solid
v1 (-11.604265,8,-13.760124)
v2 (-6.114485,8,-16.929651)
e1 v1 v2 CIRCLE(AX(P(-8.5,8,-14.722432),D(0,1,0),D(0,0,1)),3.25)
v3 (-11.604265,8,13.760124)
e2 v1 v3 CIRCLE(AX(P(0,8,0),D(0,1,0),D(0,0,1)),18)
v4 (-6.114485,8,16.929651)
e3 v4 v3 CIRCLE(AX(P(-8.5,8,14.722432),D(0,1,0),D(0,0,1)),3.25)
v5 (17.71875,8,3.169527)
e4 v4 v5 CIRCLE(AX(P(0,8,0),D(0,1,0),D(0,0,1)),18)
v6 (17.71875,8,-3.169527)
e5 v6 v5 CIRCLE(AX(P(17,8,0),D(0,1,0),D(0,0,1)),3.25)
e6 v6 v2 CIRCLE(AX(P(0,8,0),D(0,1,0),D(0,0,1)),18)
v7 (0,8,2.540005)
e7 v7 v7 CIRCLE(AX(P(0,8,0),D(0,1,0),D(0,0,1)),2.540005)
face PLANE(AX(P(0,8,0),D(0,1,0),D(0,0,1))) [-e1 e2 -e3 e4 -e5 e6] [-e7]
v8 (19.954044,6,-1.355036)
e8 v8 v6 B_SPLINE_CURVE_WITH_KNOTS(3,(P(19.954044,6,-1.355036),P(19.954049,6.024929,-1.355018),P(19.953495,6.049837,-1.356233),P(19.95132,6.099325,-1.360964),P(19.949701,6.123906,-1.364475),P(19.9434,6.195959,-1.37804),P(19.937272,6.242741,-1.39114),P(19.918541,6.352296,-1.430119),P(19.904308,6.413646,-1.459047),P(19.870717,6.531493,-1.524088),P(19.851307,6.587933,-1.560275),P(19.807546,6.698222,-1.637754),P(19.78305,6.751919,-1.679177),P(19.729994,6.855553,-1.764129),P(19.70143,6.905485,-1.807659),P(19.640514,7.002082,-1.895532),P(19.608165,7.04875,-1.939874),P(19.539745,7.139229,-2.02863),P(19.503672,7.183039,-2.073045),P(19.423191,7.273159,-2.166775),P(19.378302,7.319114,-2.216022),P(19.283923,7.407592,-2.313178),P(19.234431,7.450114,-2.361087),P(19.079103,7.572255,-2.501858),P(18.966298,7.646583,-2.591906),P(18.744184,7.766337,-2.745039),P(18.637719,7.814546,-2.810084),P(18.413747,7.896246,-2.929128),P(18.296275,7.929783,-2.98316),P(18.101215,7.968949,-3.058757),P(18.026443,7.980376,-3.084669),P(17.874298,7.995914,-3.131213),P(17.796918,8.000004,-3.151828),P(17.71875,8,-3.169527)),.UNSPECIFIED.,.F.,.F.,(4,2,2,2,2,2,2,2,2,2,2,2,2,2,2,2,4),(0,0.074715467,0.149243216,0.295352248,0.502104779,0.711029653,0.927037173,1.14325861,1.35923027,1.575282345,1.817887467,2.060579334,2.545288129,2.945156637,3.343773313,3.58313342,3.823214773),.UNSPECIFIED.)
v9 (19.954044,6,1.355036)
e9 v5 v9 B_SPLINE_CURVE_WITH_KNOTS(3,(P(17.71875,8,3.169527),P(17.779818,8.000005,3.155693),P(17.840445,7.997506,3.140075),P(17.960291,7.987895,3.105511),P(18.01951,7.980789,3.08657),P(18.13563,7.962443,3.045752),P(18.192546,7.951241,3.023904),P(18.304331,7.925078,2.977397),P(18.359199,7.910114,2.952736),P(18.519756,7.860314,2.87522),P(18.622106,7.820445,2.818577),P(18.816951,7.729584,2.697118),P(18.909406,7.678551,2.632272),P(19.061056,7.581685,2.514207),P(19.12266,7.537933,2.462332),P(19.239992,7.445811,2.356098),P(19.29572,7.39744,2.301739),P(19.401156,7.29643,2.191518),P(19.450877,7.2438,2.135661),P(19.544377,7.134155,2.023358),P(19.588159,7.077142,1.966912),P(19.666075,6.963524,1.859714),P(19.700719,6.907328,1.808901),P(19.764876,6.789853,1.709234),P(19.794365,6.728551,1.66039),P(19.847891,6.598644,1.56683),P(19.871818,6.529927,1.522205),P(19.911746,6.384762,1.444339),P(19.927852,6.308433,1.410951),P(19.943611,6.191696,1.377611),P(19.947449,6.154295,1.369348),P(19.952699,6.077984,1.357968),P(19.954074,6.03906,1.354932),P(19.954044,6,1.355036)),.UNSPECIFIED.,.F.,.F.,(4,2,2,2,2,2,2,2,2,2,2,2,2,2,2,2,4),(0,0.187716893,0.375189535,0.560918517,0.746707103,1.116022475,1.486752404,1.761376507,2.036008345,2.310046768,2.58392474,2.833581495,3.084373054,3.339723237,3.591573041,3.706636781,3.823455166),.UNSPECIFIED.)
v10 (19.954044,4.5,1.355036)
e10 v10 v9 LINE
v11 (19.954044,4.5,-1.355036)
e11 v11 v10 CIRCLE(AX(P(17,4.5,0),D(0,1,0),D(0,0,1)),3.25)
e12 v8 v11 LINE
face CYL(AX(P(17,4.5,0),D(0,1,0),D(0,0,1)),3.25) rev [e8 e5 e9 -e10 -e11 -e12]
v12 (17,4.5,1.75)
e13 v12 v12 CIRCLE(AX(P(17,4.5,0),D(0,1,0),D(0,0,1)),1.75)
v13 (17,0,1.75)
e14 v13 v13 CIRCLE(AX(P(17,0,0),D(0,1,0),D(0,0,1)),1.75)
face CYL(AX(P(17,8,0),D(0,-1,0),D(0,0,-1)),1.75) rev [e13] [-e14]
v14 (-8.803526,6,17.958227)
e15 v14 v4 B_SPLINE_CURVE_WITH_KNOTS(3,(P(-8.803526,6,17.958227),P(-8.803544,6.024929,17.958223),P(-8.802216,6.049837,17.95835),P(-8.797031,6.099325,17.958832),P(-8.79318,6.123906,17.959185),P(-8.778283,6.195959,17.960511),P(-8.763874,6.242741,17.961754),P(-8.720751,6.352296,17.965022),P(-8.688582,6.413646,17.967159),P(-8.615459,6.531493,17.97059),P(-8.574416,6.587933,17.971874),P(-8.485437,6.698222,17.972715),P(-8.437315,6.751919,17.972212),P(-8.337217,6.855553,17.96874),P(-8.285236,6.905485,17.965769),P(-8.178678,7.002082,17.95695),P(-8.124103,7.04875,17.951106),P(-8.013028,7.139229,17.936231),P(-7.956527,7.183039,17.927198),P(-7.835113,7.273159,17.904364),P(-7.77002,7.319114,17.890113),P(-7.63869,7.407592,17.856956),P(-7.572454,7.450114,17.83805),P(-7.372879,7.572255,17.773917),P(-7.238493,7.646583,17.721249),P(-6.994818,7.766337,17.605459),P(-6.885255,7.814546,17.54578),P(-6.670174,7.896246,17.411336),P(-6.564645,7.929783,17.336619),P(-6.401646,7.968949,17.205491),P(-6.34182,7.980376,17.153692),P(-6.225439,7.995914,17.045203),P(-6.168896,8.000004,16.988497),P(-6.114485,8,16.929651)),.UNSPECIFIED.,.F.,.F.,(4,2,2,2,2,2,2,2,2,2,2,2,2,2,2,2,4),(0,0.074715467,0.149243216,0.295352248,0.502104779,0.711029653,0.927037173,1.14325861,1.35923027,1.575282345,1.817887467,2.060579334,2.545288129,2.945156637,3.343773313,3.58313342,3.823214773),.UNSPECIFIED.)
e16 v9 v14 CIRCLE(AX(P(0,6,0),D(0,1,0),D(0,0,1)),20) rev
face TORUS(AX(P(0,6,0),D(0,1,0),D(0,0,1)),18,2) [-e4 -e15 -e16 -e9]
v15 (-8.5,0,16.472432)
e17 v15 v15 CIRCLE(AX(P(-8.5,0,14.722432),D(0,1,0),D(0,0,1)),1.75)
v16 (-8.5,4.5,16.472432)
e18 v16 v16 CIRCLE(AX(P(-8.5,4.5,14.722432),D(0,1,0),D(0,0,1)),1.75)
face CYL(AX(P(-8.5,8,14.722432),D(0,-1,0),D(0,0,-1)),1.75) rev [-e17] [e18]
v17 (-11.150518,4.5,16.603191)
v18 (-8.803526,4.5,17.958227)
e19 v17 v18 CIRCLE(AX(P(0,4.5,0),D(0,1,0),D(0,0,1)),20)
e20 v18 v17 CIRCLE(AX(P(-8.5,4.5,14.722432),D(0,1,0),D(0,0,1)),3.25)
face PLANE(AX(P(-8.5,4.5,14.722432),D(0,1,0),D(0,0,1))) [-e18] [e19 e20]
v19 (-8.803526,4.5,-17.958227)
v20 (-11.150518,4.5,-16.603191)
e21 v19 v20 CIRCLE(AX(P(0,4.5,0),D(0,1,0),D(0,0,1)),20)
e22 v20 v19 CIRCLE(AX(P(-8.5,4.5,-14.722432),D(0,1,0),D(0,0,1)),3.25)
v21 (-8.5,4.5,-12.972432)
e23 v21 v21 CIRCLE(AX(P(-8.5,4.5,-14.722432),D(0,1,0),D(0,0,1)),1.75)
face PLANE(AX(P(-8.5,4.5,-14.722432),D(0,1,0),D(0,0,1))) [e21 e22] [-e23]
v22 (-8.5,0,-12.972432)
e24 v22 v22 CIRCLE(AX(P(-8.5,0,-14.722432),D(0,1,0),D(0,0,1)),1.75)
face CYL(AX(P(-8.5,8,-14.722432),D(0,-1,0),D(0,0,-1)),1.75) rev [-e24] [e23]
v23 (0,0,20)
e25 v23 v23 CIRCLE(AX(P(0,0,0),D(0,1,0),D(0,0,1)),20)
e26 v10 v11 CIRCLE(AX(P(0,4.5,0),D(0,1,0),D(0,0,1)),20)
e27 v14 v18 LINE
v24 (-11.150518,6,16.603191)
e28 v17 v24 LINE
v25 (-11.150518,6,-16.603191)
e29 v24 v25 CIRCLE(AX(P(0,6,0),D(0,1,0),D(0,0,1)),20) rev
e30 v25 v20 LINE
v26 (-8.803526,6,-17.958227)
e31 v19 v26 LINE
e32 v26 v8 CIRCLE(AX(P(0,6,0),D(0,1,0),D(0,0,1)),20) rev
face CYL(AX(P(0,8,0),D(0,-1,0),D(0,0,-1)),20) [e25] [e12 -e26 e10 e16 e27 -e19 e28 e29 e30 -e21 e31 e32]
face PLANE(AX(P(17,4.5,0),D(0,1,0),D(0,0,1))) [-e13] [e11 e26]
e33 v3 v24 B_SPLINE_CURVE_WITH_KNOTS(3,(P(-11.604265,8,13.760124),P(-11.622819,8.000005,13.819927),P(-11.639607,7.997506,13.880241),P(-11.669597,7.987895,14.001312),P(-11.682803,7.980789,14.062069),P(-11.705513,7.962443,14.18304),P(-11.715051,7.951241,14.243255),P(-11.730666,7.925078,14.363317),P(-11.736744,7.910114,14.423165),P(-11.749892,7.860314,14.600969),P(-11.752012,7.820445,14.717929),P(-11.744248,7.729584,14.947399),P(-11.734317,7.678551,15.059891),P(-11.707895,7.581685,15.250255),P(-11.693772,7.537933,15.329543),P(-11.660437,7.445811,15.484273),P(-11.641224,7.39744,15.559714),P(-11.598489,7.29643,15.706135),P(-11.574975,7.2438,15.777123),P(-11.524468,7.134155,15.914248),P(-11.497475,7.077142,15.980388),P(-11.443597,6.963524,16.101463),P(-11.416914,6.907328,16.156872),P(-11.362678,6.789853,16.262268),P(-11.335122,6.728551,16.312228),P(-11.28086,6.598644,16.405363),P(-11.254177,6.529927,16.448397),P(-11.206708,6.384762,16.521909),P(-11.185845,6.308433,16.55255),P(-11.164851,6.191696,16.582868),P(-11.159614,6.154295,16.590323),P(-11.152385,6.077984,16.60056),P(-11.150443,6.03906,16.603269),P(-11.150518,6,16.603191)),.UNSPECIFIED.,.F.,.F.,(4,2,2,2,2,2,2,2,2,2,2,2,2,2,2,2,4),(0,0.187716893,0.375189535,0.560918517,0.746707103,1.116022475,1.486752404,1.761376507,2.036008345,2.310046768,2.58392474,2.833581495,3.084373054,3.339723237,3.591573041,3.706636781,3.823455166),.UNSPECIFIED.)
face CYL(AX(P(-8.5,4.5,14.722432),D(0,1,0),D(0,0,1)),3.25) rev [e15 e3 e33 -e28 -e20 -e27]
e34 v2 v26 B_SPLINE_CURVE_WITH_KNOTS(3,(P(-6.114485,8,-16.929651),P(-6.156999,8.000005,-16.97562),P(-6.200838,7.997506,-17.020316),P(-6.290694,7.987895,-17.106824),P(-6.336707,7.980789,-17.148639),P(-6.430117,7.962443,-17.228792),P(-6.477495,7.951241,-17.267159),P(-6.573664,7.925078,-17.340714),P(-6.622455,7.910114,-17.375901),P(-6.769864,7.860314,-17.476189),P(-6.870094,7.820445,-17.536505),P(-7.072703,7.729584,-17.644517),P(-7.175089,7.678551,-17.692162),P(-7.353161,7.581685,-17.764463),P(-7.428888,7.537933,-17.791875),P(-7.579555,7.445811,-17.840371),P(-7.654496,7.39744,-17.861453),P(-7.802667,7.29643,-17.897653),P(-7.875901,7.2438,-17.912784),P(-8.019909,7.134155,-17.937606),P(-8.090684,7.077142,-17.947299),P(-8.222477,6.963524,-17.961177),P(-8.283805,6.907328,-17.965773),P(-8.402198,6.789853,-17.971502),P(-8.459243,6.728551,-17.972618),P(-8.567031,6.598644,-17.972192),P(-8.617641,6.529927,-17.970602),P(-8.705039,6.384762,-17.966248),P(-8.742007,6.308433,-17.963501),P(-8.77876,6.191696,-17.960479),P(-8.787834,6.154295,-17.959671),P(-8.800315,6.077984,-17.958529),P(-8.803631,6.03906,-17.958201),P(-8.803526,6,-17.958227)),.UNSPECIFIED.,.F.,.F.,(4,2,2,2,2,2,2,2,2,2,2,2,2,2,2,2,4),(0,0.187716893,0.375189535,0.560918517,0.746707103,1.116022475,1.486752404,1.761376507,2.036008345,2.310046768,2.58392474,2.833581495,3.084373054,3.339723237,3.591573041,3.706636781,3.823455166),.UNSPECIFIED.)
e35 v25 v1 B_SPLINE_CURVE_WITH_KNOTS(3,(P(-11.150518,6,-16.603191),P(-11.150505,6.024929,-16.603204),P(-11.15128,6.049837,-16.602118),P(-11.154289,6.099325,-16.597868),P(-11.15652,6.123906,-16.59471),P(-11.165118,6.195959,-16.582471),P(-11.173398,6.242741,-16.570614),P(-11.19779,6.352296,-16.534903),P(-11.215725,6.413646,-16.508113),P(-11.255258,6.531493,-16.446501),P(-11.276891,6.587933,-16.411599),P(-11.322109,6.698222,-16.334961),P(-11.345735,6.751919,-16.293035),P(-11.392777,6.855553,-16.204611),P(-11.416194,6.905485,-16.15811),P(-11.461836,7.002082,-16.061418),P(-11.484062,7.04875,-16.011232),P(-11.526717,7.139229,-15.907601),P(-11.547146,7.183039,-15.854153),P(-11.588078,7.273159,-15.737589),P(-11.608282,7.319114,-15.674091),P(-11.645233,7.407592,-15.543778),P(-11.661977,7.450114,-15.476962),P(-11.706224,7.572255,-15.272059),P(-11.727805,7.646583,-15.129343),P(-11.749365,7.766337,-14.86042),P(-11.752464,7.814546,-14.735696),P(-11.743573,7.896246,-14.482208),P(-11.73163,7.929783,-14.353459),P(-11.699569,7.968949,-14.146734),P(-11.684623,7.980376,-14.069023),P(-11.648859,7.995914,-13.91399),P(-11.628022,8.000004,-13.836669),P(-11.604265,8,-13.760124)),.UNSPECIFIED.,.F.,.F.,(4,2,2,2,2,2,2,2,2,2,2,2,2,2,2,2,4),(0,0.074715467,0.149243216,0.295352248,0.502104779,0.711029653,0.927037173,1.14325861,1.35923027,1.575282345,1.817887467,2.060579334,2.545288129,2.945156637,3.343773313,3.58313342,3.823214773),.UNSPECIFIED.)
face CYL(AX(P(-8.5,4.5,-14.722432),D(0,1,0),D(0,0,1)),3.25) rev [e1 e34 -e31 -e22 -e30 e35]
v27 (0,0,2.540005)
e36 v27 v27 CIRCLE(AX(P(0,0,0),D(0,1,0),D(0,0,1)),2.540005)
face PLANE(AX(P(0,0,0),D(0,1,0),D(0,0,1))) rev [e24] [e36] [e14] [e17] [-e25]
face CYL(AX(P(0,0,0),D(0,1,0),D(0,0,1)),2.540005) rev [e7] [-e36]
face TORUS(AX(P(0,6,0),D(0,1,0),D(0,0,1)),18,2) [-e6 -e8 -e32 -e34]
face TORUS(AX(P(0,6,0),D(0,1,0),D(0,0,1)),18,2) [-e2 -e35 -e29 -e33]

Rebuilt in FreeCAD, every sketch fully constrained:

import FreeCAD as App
import Part
import Sketcher
from FreeCAD import Vector
Q = App.Units.Quantity


def edges_at(feature, points):
    """Names of the edges that pass closest to the given points."""
    edges = feature.Shape.Edges
    near = lambda p: min(range(len(edges)), key=lambda i: edges[i].distToShape(Part.Vertex(*p))[0])
    return sorted({f"Edge{near(p) + 1}" for p in points})

doc = App.newDocument("Part")
body = doc.addObject("PartDesign::Body", "Body")

# Sketch on XZ plane
sketch1 = body.newObject("Sketcher::SketchObject", "Sketch")
sketch1.AttachmentSupport = (doc.getObject("XZ_Plane"), [""])
sketch1.MapMode = "FlatFace"
sketch1.addGeometry([
    Part.Circle(Vector(0, 0, 0), Vector(0, 0, 1), 20),
    Part.Circle(Vector(-8.5, -14.7, 0), Vector(0, 0, 1), 1.8),
    Part.Circle(Vector(-8.5, 14.7, 0), Vector(0, 0, 1), 1.8),
    Part.Circle(Vector(17, 0, 0), Vector(0, 0, 1), 1.8),
], False)
sketch1.addConstraint([
    Sketcher.Constraint("Coincident", 0, 3, -1, 1),
    Sketcher.Constraint("Equal", 1, 2),
    Sketcher.Constraint("Equal", 2, 3),
    Sketcher.Constraint("Symmetric", 1, 3, 2, 3, -1),
    Sketcher.Constraint("PointOnObject", 3, 3, -1),
    Sketcher.Constraint("Diameter", 0, Q("40 mm")),
    Sketcher.Constraint("Diameter", 1, Q("3.5 mm")),
    Sketcher.Constraint("DistanceX", -1, 1, 3, 3, Q("17 mm")),
    Sketcher.Constraint("DistanceX", 1, 3, -1, 1, Q("8.5 mm")),
    Sketcher.Constraint("DistanceY", 1, 3, -1, 1, Q("14.722432 mm")),
])
pad1 = body.newObject("PartDesign::Pad", "Pad")
pad1.Profile = sketch1
pad1.Length = 8
pad1.Reversed = True

# Sketch on XZ plane
sketch2 = body.newObject("Sketcher::SketchObject", "Sketch001")
sketch2.AttachmentSupport = (doc.getObject("XZ_Plane"), [""])
sketch2.MapMode = "FlatFace"
sketch2.AttachmentOffset = App.Placement(Vector(0, 0, -8), App.Rotation())
sketch2.addGeometry([
    Part.Circle(Vector(17, 0, 0), Vector(0, 0, 1), 3.2),
    Part.Circle(Vector(-8.5, 14.7, 0), Vector(0, 0, 1), 3.2),
    Part.Circle(Vector(-8.5, -14.7, 0), Vector(0, 0, 1), 3.2),
], False)
sketch2.addConstraint([
    Sketcher.Constraint("Equal", 0, 1),
    Sketcher.Constraint("Equal", 1, 2),
    Sketcher.Constraint("Symmetric", 1, 3, 2, 3, -1),
    Sketcher.Constraint("PointOnObject", 0, 3, -1),
    Sketcher.Constraint("Diameter", 0, Q("6.5 mm")),
    Sketcher.Constraint("DistanceX", -1, 1, 0, 3, Q("17 mm")),
    Sketcher.Constraint("DistanceX", 1, 3, -1, 1, Q("8.5 mm")),
    Sketcher.Constraint("DistanceY", -1, 1, 1, 3, Q("14.722432 mm")),
])
pocket1 = body.newObject("PartDesign::Pocket", "Pocket")
pocket1.Profile = sketch2
pocket1.Length = 3.5
pocket1.Reversed = True

# Sketch on XZ plane
sketch3 = body.newObject("Sketcher::SketchObject", "Sketch002")
sketch3.AttachmentSupport = (doc.getObject("XZ_Plane"), [""])
sketch3.MapMode = "FlatFace"
sketch3.AttachmentOffset = App.Placement(Vector(0, 0, -8), App.Rotation())
sketch3.addGeometry(Part.Circle(Vector(0, 0, 0), Vector(0, 0, 1), 2.5), False)
sketch3.addConstraint([
    Sketcher.Constraint("Coincident", 0, 3, -1, 1),
    Sketcher.Constraint("Diameter", 0, Q("5.08001 mm")),
])
pocket2 = body.newObject("PartDesign::Pocket", "Pocket001")
pocket2.Profile = sketch3
pocket2.Type = "ThroughAll"
pocket2.Reversed = True
doc.recompute()

fillet = body.newObject("PartDesign::Fillet", "Fillet")
fillet.Base = (pocket2, edges_at(pocket2, [(10, 8, -17.321), (-20, 8, 0), (13.655, 8, 14.613)]))
fillet.Radius = 2

doc.recompute()
